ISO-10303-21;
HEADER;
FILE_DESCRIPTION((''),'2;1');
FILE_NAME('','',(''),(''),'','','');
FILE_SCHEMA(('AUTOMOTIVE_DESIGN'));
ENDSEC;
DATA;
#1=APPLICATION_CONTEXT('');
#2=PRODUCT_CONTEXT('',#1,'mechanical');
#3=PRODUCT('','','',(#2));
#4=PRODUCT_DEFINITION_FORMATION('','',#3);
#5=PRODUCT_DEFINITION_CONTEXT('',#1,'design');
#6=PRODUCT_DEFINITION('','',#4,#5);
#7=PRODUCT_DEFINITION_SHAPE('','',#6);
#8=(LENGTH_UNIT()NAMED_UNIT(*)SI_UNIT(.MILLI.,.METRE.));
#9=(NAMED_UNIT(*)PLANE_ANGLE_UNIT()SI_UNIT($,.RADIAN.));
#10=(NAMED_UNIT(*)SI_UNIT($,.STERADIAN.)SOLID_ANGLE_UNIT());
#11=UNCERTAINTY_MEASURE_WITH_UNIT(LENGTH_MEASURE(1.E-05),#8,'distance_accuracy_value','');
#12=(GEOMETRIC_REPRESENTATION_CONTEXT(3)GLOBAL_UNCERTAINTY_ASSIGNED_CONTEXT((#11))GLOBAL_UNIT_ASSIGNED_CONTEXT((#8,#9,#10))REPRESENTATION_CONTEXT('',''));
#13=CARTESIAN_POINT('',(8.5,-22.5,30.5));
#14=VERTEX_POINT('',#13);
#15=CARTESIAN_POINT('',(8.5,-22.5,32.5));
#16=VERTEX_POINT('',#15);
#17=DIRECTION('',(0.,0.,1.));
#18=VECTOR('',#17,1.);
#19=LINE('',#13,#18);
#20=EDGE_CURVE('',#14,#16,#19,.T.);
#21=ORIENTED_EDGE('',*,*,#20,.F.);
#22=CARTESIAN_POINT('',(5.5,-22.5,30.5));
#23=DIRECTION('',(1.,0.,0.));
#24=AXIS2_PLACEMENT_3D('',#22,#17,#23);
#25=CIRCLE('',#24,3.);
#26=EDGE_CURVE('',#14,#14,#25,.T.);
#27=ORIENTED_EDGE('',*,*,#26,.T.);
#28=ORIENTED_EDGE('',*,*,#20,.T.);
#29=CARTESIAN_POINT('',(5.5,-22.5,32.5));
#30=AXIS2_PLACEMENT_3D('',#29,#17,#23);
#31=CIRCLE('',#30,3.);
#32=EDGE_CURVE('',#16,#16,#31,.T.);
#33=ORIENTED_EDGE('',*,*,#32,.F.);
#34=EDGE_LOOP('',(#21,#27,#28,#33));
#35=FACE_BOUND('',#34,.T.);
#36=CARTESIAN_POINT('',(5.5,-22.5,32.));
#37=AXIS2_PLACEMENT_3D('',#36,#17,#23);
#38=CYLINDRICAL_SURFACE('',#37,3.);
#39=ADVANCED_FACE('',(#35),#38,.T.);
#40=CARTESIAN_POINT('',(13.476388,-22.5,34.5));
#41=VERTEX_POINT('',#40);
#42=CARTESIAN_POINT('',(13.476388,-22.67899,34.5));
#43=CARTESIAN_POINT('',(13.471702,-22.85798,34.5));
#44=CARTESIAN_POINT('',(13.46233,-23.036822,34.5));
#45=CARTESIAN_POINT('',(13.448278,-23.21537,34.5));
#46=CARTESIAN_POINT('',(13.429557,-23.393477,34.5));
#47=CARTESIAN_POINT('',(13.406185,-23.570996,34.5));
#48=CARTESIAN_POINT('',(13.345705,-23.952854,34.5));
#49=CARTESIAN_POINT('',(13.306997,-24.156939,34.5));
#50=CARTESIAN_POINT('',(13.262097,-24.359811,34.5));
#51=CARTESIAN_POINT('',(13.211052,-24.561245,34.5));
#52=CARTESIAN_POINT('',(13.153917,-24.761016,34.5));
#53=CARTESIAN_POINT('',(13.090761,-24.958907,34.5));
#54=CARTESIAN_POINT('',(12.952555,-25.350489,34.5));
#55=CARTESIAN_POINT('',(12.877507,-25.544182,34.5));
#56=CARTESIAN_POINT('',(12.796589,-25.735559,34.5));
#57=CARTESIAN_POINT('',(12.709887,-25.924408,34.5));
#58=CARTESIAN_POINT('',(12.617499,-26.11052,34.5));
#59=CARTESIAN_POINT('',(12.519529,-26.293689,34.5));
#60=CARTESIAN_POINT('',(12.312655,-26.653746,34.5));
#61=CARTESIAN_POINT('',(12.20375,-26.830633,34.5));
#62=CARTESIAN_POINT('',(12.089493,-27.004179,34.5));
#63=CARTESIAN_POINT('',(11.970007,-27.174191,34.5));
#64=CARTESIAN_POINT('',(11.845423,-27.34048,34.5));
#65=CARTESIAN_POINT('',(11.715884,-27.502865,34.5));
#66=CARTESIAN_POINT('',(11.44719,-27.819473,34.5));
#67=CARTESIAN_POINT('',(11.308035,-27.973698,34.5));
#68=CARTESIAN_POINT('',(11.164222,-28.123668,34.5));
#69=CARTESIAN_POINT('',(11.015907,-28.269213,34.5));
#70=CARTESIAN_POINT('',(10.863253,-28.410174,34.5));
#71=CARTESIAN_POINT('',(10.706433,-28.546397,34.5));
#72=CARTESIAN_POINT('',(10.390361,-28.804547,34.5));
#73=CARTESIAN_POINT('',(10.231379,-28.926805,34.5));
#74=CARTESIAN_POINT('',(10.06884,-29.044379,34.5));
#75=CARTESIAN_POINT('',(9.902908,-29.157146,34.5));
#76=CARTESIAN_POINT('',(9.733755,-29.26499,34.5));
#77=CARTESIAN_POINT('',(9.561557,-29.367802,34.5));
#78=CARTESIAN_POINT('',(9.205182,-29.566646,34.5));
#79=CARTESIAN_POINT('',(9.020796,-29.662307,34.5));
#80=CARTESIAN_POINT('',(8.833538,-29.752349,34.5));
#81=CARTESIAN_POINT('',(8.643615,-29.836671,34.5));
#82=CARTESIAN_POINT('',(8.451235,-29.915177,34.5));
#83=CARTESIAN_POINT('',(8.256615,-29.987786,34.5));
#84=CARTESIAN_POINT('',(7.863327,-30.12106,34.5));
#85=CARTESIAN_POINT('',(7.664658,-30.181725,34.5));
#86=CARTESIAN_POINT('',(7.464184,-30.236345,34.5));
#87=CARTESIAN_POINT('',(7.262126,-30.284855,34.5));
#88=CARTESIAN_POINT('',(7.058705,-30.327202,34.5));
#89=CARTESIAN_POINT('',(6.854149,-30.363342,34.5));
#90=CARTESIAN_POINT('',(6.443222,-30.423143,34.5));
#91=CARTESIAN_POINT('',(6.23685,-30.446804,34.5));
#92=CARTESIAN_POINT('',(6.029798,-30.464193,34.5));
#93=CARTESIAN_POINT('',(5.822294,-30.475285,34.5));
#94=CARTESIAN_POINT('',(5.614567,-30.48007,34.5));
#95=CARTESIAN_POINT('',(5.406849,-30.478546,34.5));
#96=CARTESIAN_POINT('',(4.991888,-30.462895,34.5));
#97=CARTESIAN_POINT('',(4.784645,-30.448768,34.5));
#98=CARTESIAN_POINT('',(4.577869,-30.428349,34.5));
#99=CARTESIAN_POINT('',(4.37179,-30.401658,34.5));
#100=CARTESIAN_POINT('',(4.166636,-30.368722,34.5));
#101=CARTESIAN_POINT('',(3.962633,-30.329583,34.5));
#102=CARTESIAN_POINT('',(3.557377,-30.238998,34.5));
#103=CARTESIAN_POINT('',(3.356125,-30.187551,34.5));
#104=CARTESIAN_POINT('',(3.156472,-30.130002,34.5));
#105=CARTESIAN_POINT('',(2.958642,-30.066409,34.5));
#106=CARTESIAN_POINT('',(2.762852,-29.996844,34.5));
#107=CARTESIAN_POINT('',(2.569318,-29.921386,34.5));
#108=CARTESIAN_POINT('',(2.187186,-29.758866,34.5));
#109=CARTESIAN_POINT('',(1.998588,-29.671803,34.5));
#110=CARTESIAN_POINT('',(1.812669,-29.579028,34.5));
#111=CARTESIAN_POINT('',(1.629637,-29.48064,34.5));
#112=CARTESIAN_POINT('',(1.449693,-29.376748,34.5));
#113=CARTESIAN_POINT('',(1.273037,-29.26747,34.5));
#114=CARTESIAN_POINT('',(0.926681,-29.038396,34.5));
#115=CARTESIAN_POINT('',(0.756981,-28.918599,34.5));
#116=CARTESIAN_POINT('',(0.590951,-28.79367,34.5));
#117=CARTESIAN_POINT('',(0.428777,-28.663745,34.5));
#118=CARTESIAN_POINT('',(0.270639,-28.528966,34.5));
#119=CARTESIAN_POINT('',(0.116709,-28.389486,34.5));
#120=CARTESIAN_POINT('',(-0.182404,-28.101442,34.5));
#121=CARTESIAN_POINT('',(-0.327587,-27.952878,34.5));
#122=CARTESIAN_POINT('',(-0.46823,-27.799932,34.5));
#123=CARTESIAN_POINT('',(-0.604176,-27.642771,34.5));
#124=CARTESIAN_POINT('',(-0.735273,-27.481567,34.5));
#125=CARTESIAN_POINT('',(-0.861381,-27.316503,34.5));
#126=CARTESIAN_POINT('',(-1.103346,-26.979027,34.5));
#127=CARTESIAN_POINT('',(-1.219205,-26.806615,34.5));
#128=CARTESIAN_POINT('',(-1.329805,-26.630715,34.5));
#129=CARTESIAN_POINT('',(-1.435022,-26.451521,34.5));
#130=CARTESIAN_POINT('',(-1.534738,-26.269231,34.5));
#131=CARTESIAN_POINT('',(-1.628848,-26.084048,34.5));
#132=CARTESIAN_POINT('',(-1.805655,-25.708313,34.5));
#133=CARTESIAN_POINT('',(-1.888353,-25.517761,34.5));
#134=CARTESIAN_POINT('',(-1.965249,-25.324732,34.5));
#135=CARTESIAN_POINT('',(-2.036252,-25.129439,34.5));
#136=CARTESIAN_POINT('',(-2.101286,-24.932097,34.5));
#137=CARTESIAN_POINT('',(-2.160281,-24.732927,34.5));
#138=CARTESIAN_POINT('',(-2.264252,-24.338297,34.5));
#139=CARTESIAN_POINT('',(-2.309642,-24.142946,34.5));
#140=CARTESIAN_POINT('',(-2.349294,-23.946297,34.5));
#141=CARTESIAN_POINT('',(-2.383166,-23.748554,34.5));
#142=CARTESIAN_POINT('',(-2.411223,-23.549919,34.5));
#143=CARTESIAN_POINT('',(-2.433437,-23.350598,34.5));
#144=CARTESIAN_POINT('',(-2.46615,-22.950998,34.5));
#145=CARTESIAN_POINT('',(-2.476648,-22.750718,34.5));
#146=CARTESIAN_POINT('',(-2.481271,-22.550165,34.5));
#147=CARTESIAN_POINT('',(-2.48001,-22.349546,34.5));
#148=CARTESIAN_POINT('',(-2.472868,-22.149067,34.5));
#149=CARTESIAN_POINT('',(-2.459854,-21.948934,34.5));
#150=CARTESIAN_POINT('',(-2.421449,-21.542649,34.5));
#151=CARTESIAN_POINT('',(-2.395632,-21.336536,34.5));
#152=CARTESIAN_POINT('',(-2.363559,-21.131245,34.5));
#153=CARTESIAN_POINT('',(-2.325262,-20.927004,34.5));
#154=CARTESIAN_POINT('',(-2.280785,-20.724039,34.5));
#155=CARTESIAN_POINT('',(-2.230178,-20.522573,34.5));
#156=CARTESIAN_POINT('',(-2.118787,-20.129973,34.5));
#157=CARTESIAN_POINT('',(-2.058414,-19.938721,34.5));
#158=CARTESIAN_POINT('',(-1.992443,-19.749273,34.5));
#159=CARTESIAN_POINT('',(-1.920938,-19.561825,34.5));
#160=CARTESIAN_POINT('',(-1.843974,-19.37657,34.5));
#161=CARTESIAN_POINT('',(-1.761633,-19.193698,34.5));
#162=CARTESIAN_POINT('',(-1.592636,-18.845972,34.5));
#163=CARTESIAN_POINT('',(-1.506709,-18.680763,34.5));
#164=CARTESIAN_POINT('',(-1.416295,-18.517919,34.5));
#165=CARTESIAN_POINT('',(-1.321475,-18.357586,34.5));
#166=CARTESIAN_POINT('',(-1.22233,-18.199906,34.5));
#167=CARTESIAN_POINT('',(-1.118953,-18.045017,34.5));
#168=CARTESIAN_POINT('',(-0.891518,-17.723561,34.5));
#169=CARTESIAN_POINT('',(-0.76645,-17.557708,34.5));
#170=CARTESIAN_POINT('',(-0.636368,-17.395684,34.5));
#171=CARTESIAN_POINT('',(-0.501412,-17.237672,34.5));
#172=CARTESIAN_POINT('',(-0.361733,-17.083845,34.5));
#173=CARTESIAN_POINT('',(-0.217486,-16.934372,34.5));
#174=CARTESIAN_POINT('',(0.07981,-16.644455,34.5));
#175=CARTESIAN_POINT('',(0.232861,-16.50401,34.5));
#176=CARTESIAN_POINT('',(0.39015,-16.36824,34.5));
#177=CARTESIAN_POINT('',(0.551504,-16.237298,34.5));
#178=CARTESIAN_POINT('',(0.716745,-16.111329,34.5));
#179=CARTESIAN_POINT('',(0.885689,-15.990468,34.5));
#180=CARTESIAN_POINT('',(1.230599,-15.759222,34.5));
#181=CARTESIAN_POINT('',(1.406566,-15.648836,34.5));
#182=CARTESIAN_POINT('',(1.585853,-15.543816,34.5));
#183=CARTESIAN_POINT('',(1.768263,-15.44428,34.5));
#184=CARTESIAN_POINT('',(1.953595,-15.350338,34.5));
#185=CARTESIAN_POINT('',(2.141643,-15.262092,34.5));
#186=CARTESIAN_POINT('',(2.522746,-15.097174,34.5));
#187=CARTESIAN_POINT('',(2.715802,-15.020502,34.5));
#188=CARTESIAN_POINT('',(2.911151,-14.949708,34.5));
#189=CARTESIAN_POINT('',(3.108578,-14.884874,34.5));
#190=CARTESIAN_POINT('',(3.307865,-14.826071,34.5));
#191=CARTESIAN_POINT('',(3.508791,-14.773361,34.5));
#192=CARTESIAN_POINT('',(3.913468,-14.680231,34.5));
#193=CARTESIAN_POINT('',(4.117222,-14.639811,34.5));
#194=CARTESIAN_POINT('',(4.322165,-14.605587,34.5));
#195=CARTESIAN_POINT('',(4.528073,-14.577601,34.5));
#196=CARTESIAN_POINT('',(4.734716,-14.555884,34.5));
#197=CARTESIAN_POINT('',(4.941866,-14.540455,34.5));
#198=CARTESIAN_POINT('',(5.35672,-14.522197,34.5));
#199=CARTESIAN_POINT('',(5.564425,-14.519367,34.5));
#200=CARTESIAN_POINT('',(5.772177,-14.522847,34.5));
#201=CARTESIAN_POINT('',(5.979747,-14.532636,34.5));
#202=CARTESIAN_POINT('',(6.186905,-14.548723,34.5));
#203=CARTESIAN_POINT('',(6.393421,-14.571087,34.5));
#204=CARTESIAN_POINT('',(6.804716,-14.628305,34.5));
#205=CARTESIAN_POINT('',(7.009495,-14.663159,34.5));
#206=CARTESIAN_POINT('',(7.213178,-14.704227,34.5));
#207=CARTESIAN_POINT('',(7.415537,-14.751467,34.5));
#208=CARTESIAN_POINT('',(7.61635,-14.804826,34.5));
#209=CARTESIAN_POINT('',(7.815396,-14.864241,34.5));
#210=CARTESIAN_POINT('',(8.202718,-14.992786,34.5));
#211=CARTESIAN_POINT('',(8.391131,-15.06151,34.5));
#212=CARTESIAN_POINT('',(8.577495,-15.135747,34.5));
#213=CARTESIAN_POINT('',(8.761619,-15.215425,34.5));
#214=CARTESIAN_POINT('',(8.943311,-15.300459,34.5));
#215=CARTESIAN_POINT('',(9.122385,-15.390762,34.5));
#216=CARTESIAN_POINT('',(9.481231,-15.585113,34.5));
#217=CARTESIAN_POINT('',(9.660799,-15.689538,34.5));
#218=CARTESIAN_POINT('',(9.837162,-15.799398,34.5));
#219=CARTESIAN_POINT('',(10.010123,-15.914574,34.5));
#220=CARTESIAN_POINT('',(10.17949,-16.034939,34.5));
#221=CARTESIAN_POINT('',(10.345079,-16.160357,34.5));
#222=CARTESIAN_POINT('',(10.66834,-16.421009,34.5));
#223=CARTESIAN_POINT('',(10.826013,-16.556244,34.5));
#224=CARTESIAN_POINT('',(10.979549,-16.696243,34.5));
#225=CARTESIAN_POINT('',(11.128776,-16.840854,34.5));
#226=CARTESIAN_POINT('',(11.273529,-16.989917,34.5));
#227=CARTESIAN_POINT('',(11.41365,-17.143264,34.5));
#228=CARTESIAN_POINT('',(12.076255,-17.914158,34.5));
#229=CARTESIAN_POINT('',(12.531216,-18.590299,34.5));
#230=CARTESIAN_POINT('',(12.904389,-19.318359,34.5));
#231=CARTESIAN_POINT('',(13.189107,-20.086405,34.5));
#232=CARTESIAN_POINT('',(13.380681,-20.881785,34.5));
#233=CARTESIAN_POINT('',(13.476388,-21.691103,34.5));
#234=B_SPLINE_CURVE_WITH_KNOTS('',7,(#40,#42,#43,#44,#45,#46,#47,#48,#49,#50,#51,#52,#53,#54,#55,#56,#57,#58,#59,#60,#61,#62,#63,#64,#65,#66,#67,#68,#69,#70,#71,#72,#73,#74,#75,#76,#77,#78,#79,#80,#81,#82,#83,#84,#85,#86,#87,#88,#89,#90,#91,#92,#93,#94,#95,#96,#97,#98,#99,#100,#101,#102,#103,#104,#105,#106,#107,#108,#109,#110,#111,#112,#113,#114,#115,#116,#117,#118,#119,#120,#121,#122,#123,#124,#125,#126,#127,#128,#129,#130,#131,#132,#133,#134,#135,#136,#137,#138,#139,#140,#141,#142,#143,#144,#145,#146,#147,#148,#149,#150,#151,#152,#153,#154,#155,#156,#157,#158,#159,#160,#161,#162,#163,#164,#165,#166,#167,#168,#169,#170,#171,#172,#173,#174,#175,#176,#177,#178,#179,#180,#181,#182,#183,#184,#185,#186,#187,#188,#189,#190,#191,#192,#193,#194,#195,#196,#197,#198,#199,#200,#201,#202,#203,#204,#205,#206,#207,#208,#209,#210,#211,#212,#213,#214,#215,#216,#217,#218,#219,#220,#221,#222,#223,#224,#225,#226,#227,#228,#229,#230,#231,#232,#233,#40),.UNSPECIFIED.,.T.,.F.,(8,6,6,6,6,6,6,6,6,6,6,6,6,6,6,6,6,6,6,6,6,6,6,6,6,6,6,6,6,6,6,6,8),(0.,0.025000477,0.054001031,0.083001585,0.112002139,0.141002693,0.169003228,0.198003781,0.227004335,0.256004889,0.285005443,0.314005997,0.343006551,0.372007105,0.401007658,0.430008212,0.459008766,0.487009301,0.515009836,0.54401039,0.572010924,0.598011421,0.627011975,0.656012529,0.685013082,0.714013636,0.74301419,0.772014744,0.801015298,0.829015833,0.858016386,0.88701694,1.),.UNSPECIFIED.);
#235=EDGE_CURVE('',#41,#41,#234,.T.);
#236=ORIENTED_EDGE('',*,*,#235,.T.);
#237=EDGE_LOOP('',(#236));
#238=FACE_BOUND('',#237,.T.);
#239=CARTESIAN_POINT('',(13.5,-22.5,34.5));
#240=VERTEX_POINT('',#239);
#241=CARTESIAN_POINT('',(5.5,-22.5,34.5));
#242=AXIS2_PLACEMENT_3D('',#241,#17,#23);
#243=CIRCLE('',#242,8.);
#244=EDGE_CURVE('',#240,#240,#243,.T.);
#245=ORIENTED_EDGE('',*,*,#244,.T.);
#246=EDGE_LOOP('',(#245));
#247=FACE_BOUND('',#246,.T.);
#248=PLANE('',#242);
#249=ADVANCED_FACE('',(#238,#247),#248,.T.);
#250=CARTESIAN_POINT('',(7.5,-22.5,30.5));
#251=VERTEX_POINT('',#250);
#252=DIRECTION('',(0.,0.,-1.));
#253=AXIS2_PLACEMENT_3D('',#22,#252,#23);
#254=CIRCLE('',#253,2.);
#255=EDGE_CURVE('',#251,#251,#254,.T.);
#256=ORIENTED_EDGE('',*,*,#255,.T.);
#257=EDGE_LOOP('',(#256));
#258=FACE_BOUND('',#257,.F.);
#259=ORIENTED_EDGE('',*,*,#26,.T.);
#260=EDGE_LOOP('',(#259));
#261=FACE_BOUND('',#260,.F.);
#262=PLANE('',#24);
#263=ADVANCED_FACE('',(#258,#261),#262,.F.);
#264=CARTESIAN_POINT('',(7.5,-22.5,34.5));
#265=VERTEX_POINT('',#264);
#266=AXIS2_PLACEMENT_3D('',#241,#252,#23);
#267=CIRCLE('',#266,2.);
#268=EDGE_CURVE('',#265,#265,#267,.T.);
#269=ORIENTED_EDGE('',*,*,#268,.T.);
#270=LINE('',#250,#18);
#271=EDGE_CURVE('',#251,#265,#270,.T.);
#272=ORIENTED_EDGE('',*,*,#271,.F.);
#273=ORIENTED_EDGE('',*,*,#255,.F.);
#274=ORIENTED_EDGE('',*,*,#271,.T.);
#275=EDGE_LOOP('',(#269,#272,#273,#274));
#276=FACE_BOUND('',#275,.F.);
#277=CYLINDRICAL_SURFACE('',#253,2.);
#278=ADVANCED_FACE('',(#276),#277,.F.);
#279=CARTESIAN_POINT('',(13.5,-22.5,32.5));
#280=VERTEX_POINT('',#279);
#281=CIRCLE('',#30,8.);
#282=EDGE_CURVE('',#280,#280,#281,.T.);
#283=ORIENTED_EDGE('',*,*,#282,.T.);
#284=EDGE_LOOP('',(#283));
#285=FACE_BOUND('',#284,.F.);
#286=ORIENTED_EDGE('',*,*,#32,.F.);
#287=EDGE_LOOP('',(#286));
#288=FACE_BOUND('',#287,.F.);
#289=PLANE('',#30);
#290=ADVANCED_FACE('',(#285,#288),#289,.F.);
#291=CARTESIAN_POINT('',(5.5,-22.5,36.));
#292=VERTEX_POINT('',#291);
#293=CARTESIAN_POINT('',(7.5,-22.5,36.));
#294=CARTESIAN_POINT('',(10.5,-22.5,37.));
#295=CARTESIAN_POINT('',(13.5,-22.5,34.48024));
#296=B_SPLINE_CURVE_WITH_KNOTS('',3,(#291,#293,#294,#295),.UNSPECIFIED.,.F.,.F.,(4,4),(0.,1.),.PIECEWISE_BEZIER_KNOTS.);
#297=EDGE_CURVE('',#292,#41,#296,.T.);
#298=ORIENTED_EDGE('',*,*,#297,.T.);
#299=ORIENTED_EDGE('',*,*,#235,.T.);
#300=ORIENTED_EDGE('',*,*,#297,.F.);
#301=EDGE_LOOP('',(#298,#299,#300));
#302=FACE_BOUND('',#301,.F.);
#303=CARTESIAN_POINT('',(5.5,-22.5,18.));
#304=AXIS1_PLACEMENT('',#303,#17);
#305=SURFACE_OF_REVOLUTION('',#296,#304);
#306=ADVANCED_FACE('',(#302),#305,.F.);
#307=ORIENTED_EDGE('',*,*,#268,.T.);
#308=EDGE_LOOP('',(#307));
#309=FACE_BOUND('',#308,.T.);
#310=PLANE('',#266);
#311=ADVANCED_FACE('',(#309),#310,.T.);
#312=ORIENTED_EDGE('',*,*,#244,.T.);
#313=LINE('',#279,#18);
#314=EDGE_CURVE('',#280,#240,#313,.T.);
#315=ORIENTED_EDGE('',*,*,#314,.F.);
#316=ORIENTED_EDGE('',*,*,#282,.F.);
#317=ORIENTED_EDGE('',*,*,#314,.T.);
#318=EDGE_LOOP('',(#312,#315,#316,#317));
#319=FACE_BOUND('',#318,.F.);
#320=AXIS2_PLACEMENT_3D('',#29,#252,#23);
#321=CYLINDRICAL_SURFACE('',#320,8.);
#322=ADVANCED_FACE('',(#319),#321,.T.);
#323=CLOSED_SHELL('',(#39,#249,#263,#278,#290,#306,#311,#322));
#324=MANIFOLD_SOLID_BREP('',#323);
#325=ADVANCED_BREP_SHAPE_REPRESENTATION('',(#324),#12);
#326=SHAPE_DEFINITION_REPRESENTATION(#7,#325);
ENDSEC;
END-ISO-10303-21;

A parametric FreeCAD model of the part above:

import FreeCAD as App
import Part
import Sketcher
Q = App.Units.Quantity

doc = App.newDocument("Part")
params = doc.addObject("Spreadsheet::Sheet", "Params")
for row, (alias, value) in enumerate([
    ("sketch1_diameter", "6 mm"),
    ("pad1_length", "0.5 mm"),
    ("sketch2_diameter", "6 mm"),
    ("pad2_length", "1.5 mm"),
    ("sketch3_diameter", "16 mm"),
    ("pad3_length", "2 mm"),
    ("revolution_angle", "360 deg"),
    ("sketch5_diameter", "4 mm"),
    ("pocket1_length", "4 mm"),
], start=1):
    params.set(f"A{row}", alias)
    params.set(f"B{row}", "=" + value)
    params.setAlias(f"B{row}", alias)

body = doc.addObject("PartDesign::Body", "Body")

# Sketch on XY plane
sketch1 = body.newObject("Sketcher::SketchObject", "Sketch")
sketch1.AttachmentSupport = (doc.getObject("XY_Plane"), [""])
sketch1.MapMode = "FlatFace"
sketch1.AttachmentOffset = App.Placement(App.Vector(0, 0, 32), App.Rotation())
sketch1.addGeometry(Part.Circle(App.Vector(5.5, -22.5, 0), App.Vector(0, 0, 1), 3), False)
sketch1.addConstraint([
    Sketcher.Constraint("Diameter", 0, Q("6 mm")),
    Sketcher.Constraint("DistanceX", -1, 1, 0, 3, Q("5.5 mm")),
    Sketcher.Constraint("DistanceY", 0, 3, -1, 1, Q("22.5 mm")),
])
sketch1.setExpression("Constraints[0]", "Params.sketch1_diameter")
pad1 = body.newObject("PartDesign::Pad", "Pad")
pad1.Profile = sketch1
pad1.setExpression("Length", "Params.pad1_length")

# Sketch on XY plane
sketch2 = body.newObject("Sketcher::SketchObject", "Sketch001")
sketch2.AttachmentSupport = (doc.getObject("XY_Plane"), [""])
sketch2.MapMode = "FlatFace"
sketch2.AttachmentOffset = App.Placement(App.Vector(0, 0, 32), App.Rotation())
sketch2.addGeometry(Part.Circle(App.Vector(5.5, -22.5, 0), App.Vector(0, 0, 1), 3), False)
sketch2.addConstraint([
    Sketcher.Constraint("Diameter", 0, Q("6 mm")),
    Sketcher.Constraint("DistanceX", -1, 1, 0, 3, Q("5.5 mm")),
    Sketcher.Constraint("DistanceY", 0, 3, -1, 1, Q("22.5 mm")),
])
sketch2.setExpression("Constraints[0]", "Params.sketch2_diameter")
pad2 = body.newObject("PartDesign::Pad", "Pad001")
pad2.Profile = sketch2
pad2.setExpression("Length", "Params.pad2_length")
pad2.Reversed = True

# Sketch on XY plane
sketch3 = body.newObject("Sketcher::SketchObject", "Sketch002")
sketch3.AttachmentSupport = (doc.getObject("XY_Plane"), [""])
sketch3.MapMode = "FlatFace"
sketch3.AttachmentOffset = App.Placement(App.Vector(0, 0, 32.5), App.Rotation())
sketch3.addGeometry(Part.Circle(App.Vector(5.5, -22.5, 0), App.Vector(0, 0, 1), 8), False)
sketch3.addConstraint([
    Sketcher.Constraint("Diameter", 0, Q("16 mm")),
    Sketcher.Constraint("DistanceX", -1, 1, 0, 3, Q("5.5 mm")),
    Sketcher.Constraint("DistanceY", 0, 3, -1, 1, Q("22.5 mm")),
])
sketch3.setExpression("Constraints[0]", "Params.sketch3_diameter")
pad3 = body.newObject("PartDesign::Pad", "Pad002")
pad3.Profile = sketch3
pad3.setExpression("Length", "Params.pad3_length")

# Sketch on XZ plane
sketch4 = body.newObject("Sketcher::SketchObject", "Sketch003")
sketch4.AttachmentSupport = (doc.getObject("XZ_Plane"), [""])
sketch4.MapMode = "FlatFace"
sketch4.AttachmentOffset = App.Placement(App.Vector(0, 0, 22.5), App.Rotation())
sketch4.addGeometry([
    Part.LineSegment(App.Vector(5.5, 36, 0), App.Vector(5.5, 34.48024, 0)),
    Part.LineSegment(App.Vector(5.5, 34.48024, 0), App.Vector(13.5, 34.48024, 0)),
    Part.BSplineCurve([App.Vector(5.5, 36, 0), App.Vector(7.5, 36, 0), App.Vector(10.5, 37, 0), App.Vector(13.5, 34.48024, 0)], [4, 4], [0, 1], False, 3, [1, 1, 1, 1], False),
], False)
sketch4.addGeometry(Part.LineSegment(App.Vector(5.5, 34.48024, 0), App.Vector(5.5, 36, 0)), True)  # axis
sketch4.addConstraint([
    Sketcher.Constraint("Block", 2),
    Sketcher.Constraint("Coincident", 0, 2, 1, 1),
    Sketcher.Constraint("Coincident", 1, 2, 2, 2),
    Sketcher.Constraint("Coincident", 2, 1, 0, 1),
    Sketcher.Constraint("Vertical", 0),
    Sketcher.Constraint("Horizontal", 1),
    Sketcher.Constraint("Vertical", 3),
    Sketcher.Constraint("Coincident", 3, 1, 0, 2),
    Sketcher.Constraint("Equal", 0, 3),
])
revolution = body.newObject("PartDesign::Revolution", "Revolution")
revolution.Profile = sketch4
revolution.ReferenceAxis = (sketch4, ["Axis0"])
revolution.setExpression("Angle", "Params.revolution_angle")

# Sketch on XY plane
sketch5 = body.newObject("Sketcher::SketchObject", "Sketch004")
sketch5.AttachmentSupport = (doc.getObject("XY_Plane"), [""])
sketch5.MapMode = "FlatFace"
sketch5.AttachmentOffset = App.Placement(App.Vector(0, 0, 30.5), App.Rotation())
sketch5.addGeometry(Part.Circle(App.Vector(5.5, -22.5, 0), App.Vector(0, 0, 1), 2), False)
sketch5.addConstraint([
    Sketcher.Constraint("Diameter", 0, Q("4 mm")),
    Sketcher.Constraint("DistanceX", -1, 1, 0, 3, Q("5.5 mm")),
    Sketcher.Constraint("DistanceY", 0, 3, -1, 1, Q("22.5 mm")),
])
sketch5.setExpression("Constraints[0]", "Params.sketch5_diameter")
pocket1 = body.newObject("PartDesign::Pocket", "Pocket")
pocket1.Profile = sketch5
pocket1.setExpression("Length", "Params.pocket1_length")
pocket1.Reversed = True

doc.recompute()
